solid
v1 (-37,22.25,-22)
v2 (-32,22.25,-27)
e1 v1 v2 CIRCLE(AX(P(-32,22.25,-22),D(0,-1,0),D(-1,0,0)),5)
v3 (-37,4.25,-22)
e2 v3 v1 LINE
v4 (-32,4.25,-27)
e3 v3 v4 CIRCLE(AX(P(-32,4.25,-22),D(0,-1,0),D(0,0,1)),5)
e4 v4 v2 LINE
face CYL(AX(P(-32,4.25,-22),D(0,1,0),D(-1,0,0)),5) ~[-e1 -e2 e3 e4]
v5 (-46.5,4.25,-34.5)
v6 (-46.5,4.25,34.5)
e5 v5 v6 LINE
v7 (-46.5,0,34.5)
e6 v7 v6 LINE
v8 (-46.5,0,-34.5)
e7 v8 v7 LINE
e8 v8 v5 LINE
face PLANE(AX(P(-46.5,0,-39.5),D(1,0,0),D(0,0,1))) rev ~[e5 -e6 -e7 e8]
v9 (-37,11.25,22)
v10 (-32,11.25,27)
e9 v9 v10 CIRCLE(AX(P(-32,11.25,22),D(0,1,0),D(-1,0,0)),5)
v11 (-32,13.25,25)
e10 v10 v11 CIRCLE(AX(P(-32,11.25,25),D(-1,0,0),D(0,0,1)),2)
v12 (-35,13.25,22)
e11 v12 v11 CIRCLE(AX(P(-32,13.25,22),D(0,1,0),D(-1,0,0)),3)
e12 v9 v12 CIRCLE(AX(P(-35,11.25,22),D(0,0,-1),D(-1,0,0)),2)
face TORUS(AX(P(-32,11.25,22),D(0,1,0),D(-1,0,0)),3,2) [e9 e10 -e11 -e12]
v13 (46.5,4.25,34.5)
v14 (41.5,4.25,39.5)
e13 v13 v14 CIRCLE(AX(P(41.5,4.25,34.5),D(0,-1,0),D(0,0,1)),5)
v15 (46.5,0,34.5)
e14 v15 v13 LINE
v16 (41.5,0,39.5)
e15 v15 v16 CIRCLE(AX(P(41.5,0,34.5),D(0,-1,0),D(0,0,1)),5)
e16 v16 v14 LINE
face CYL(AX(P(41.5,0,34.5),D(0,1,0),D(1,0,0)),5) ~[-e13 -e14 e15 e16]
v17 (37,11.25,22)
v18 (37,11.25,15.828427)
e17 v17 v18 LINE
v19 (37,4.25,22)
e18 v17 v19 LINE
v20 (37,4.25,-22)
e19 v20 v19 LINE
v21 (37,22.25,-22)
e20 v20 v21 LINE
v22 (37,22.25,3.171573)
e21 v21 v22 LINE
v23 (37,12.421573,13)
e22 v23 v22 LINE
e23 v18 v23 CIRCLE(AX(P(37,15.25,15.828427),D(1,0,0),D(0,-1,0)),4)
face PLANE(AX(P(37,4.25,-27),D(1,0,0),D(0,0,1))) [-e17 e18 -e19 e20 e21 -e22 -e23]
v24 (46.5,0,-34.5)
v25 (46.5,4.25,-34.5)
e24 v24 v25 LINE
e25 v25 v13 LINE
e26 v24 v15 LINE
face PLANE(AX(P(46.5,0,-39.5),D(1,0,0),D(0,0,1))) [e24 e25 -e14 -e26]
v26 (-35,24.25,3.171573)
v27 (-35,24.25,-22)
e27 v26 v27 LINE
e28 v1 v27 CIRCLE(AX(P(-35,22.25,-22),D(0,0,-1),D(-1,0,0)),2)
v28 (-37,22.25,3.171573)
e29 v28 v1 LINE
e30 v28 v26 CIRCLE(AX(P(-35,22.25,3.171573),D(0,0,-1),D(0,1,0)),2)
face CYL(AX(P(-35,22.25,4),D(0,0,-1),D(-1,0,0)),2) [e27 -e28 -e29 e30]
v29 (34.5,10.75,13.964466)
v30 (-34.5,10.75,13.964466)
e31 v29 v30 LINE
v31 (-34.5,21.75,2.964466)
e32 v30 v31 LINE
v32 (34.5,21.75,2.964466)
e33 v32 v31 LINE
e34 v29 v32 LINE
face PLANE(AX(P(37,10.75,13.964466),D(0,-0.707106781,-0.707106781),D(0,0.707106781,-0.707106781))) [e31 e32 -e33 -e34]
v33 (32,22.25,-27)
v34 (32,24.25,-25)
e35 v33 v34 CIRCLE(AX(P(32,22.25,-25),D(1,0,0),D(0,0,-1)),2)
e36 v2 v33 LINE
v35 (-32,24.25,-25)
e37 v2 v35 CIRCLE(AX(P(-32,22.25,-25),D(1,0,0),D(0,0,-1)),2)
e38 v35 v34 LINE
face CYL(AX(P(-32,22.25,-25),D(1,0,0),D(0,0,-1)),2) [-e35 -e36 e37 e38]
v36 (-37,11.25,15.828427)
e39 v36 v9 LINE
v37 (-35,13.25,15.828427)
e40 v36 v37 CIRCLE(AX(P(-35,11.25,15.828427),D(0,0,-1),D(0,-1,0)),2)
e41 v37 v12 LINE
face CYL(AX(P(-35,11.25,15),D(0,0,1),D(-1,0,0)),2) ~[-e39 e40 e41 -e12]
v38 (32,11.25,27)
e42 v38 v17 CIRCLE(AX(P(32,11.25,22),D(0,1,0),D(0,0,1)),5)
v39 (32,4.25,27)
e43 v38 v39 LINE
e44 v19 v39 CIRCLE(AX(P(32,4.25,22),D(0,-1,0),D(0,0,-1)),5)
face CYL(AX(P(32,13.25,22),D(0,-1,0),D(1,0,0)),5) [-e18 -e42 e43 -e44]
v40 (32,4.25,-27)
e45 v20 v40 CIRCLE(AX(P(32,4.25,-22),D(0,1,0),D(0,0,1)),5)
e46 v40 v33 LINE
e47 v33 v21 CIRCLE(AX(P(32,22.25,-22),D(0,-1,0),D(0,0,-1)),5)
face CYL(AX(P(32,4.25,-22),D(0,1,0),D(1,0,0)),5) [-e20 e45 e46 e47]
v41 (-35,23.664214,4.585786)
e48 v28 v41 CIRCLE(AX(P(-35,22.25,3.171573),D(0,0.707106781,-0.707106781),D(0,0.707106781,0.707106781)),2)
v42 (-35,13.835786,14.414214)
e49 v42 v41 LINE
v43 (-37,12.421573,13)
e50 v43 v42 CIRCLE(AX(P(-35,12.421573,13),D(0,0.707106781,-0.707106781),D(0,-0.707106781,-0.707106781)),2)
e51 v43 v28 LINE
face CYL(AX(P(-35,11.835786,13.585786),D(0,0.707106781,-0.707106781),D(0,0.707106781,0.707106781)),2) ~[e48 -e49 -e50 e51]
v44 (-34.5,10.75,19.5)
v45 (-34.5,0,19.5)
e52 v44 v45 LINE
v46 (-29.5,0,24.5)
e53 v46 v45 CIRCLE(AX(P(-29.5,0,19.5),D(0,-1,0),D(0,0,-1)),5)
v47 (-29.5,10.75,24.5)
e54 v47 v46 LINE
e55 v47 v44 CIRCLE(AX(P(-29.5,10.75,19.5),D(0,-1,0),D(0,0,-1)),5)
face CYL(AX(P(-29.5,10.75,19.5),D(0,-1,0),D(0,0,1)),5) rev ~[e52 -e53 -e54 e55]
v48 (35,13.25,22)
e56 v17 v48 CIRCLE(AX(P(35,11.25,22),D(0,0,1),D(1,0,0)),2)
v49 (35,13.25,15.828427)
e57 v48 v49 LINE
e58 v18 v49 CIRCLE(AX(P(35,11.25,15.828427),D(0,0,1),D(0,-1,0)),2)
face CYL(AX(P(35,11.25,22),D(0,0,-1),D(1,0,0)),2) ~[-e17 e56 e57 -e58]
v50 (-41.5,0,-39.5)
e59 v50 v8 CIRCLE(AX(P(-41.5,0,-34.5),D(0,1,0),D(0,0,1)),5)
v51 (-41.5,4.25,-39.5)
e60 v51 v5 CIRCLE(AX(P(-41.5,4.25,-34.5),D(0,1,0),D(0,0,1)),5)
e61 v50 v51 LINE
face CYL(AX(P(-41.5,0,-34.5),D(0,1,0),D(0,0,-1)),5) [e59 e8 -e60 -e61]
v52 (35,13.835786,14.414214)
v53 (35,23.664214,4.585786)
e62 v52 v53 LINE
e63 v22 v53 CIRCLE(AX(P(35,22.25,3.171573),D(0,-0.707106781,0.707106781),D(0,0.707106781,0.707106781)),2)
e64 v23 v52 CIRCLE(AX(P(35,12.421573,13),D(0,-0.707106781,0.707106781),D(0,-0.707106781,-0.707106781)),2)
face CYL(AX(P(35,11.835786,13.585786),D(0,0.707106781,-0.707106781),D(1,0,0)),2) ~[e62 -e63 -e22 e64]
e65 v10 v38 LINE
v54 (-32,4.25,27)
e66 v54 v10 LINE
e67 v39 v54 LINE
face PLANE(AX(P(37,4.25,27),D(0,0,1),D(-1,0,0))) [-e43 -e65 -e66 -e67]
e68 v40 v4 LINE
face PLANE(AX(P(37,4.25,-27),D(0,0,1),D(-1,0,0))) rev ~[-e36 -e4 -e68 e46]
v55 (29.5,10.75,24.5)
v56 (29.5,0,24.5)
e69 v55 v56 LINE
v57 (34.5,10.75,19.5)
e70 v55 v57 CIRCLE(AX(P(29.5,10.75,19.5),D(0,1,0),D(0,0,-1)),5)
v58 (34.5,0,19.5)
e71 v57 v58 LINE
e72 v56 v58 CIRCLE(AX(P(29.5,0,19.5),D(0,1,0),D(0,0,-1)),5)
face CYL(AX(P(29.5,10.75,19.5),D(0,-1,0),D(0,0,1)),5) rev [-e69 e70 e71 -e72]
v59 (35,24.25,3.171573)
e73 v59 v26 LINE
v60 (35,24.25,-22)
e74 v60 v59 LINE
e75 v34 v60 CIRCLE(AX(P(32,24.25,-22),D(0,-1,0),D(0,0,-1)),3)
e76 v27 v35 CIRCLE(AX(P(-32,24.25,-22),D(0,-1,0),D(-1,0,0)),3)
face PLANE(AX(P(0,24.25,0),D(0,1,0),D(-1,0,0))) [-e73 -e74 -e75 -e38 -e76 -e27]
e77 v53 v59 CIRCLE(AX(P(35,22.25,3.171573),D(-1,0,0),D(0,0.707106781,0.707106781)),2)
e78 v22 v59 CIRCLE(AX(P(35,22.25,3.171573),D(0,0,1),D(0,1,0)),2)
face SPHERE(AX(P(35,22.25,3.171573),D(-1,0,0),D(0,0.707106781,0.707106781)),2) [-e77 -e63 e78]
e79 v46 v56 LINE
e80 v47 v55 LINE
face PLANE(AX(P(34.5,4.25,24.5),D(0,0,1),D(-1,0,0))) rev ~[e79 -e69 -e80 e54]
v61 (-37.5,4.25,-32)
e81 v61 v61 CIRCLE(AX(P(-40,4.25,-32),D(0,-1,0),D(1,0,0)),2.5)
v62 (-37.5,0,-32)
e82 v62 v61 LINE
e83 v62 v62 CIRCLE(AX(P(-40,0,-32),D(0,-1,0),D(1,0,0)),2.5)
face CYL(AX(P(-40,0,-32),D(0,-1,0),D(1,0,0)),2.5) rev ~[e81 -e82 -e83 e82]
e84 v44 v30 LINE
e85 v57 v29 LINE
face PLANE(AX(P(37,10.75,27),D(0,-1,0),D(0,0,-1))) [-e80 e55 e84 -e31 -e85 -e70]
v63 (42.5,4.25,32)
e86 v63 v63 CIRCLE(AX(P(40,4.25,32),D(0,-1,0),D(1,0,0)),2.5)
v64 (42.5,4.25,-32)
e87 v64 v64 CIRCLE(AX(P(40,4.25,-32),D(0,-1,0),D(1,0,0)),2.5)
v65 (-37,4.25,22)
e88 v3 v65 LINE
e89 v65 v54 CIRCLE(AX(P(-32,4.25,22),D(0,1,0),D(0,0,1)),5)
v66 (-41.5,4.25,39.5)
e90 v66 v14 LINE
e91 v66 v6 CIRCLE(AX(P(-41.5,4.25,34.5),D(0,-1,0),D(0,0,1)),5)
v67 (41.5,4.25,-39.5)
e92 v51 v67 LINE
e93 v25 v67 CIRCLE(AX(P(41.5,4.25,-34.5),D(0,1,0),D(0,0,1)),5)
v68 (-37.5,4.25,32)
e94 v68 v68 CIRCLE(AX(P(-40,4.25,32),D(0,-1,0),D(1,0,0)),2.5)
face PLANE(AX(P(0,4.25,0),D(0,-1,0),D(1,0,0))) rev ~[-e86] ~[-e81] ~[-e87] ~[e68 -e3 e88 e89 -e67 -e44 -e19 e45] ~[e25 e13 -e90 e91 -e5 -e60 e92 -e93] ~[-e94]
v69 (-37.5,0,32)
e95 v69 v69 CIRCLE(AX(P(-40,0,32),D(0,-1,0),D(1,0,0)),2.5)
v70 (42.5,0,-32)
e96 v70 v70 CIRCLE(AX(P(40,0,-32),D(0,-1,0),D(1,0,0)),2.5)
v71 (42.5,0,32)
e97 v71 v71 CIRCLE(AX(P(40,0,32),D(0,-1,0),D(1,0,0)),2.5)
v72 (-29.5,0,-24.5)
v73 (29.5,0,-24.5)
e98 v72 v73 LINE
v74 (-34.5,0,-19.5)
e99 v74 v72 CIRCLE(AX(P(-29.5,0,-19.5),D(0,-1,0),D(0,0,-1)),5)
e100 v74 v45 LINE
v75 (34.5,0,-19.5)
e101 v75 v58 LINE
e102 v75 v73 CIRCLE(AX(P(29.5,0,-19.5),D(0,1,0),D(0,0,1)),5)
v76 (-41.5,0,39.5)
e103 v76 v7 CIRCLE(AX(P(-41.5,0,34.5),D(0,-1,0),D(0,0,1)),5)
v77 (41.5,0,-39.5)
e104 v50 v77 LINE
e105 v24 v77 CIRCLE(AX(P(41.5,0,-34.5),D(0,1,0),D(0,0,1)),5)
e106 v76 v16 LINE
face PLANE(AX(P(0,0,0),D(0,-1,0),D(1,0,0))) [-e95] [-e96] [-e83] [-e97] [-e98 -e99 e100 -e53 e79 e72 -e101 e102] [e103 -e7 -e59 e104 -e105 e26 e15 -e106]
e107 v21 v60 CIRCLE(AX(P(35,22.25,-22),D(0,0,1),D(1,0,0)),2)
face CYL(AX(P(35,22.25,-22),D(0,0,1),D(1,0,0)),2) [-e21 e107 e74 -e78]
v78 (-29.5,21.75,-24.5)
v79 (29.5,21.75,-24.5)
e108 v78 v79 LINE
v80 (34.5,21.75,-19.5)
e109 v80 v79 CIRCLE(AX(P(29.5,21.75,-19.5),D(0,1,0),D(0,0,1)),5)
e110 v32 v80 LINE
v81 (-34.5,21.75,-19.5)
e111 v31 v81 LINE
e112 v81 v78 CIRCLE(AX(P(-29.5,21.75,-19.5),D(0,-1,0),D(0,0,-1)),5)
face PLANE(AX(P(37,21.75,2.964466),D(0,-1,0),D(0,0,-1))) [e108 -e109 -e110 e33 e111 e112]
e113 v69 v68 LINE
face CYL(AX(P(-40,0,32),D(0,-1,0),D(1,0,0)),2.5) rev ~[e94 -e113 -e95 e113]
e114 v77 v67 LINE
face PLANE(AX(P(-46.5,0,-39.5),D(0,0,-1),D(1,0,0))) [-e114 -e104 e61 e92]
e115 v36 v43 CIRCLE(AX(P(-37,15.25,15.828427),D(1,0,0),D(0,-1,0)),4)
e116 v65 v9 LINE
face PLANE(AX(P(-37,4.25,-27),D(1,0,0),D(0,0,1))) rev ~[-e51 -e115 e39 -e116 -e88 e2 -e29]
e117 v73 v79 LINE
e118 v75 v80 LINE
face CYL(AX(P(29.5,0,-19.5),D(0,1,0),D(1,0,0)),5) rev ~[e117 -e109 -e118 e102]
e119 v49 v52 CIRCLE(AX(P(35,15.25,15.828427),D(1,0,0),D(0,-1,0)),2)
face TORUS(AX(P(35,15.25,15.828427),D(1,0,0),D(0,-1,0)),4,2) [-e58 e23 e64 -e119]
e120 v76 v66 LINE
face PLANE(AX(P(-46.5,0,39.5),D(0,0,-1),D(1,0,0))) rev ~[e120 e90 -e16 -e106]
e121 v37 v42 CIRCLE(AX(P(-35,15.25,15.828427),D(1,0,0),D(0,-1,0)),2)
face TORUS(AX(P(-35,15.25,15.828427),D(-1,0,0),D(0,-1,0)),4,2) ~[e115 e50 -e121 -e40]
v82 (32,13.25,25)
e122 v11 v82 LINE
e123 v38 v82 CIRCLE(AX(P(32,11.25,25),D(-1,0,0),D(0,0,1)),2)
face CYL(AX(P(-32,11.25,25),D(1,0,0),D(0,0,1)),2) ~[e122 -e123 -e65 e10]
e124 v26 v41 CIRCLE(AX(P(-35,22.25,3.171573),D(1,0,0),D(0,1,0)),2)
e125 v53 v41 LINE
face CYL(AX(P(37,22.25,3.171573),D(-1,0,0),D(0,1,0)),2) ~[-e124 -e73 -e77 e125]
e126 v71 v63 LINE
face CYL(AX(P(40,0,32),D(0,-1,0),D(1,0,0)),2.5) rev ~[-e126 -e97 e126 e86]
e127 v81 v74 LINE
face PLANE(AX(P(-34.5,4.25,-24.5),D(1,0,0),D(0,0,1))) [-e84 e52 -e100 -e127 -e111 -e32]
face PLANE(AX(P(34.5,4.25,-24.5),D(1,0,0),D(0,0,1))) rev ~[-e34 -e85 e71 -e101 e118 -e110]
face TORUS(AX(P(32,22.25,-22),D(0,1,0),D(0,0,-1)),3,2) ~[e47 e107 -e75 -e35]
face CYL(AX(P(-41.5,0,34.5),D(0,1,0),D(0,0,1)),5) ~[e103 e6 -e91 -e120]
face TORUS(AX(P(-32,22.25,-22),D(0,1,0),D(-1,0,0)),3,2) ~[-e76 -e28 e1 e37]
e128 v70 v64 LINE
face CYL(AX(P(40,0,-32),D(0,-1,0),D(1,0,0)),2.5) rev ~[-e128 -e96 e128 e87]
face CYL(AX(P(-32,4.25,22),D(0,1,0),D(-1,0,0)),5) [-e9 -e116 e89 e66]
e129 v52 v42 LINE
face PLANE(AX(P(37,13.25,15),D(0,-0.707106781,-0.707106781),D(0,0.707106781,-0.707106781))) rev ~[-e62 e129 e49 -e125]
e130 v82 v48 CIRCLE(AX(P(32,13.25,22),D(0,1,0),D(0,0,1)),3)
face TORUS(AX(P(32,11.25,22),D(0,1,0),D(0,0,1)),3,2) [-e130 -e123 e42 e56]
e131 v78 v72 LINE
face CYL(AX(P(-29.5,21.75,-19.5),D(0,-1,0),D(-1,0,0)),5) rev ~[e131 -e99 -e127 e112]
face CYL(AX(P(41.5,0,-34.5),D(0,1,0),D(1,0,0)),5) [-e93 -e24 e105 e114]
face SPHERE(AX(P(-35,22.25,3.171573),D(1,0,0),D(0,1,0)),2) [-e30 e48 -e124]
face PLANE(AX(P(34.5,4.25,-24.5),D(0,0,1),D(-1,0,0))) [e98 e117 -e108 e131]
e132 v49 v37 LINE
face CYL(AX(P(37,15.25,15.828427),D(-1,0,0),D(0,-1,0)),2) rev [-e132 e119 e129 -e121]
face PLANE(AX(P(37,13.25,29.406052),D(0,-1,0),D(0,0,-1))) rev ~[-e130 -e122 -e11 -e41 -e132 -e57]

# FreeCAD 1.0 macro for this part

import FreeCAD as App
import Part
import Sketcher

V = App.Vector
Q = App.Units.Quantity


def edges_at(feature, points):
    """Names of the edges that pass closest to the given points."""
    edges = feature.Shape.Edges
    near = lambda p: min(range(len(edges)), key=lambda i: edges[i].distToShape(Part.Vertex(*p))[0])
    return sorted({f"Edge{near(p) + 1}" for p in points})


def add_polygon(sketch, points):
    """Adds a closed chain of lines whose ends are joined by coincident constraints."""
    first, n = sketch.GeometryCount, len(points)
    for a, b in zip(points, points[1:] + points[:1]):
        sketch.addGeometry(Part.LineSegment(App.Vector(*a, 0), App.Vector(*b, 0)), False)
    for i in range(n):
        sketch.addConstraint(Sketcher.Constraint("Coincident", first + i, 2, first + (i + 1) % n, 1))

doc = App.newDocument("Part")
body = doc.addObject("PartDesign::Body", "Body")

# Sketch on XZ plane
sketch1 = doc.addObject("Sketcher::SketchObject", "Sketch")
body.addObject(sketch1)
sketch1.AttachmentSupport = (doc.XZ_Plane, [""])
sketch1.MapMode = "FlatFace"
add_polygon(sketch1, [(-46.5, 39.5), (-46.5, -39.5), (46.5, -39.5), (46.5, 39.5)])  # lines 0-3
sketch1.addGeometry(Part.Circle(V(-40, -32, 0), V(0, 0, 1), 2.5), False)  # 4
sketch1.addGeometry(Part.Circle(V(40, -32, 0), V(0, 0, 1), 2.5), False)  # 5
sketch1.addGeometry(Part.Circle(V(-40, 32, 0), V(0, 0, 1), 2.5), False)  # 6
add_polygon(sketch1, [(34.5, -24.5), (-34.5, -24.5), (-34.5, 24.5), (34.5, 24.5)])  # lines 7-10
sketch1.addGeometry(Part.Circle(V(40, 32, 0), V(0, 0, 1), 2.5), False)  # 11
sketch1.addConstraint(Sketcher.Constraint("Vertical", 0))
sketch1.addConstraint(Sketcher.Constraint("Horizontal", 1))
sketch1.addConstraint(Sketcher.Constraint("Vertical", 2))
sketch1.addConstraint(Sketcher.Constraint("Horizontal", 3))
sketch1.addConstraint(Sketcher.Constraint("Horizontal", 7))
sketch1.addConstraint(Sketcher.Constraint("Vertical", 8))
sketch1.addConstraint(Sketcher.Constraint("Horizontal", 9))
sketch1.addConstraint(Sketcher.Constraint("Vertical", 10))
sketch1.addConstraint(Sketcher.Constraint("Equal", 4, 5))
sketch1.addConstraint(Sketcher.Constraint("Equal", 5, 6))
sketch1.addConstraint(Sketcher.Constraint("Equal", 6, 11))
sketch1.addConstraint(Sketcher.Constraint("Symmetric", 5, 3, 6, 3, -1, 1))
sketch1.addConstraint(Sketcher.Constraint("Symmetric", 4, 3, 11, 3, -1, 1))
sketch1.addConstraint(Sketcher.Constraint("Symmetric", 0, 2, 2, 2, -1, 1))
sketch1.addConstraint(Sketcher.Constraint("Symmetric", 7, 2, 9, 2, -1, 1))
sketch1.addConstraint(Sketcher.Constraint("Symmetric", 4, 3, 5, 3, -2))
sketch1.addConstraint(Sketcher.Constraint("Diameter", 4, 5.0))
sketch1.addConstraint(Sketcher.Constraint("DistanceX", 1, 1, 1, 2, 93.0))
sketch1.addConstraint(Sketcher.Constraint("DistanceX", 7, 2, 7, 1, 69.0))
sketch1.addConstraint(Sketcher.Constraint("DistanceY", 0, 2, 0, 1, 79.0))
sketch1.addConstraint(Sketcher.Constraint("DistanceY", 8, 1, 8, 2, 49.0))
sketch1.addConstraint(Sketcher.Constraint("DistanceX", 4, 3, -1, 1, 40.0))
sketch1.addConstraint(Sketcher.Constraint("DistanceY", 4, 3, -1, 1, 32.0))
pad1 = doc.addObject("PartDesign::Pad", "Pad")
body.addObject(pad1)
pad1.Profile = sketch1
pad1.Length = 4.25
pad1.Reversed = True

# Sketch on XZ plane
sketch2 = doc.addObject("Sketcher::SketchObject", "Sketch001")
body.addObject(sketch2)
sketch2.AttachmentSupport = (doc.XZ_Plane, [""])
sketch2.MapMode = "FlatFace"
sketch2.AttachmentOffset = App.Placement(V(0, 0, -4.25), App.Rotation())
add_polygon(sketch2, [(37, 27), (37, -27), (-37, -27), (-37, 27)])  # lines 0-3
add_polygon(sketch2, [(-34.5, -24.5), (34.5, -24.5), (34.5, 24.5), (-34.5, 24.5)])  # lines 4-7
sketch2.addConstraint(Sketcher.Constraint("Vertical", 0))
sketch2.addConstraint(Sketcher.Constraint("Horizontal", 1))
sketch2.addConstraint(Sketcher.Constraint("Vertical", 2))
sketch2.addConstraint(Sketcher.Constraint("Horizontal", 3))
sketch2.addConstraint(Sketcher.Constraint("Horizontal", 4))
sketch2.addConstraint(Sketcher.Constraint("Vertical", 5))
sketch2.addConstraint(Sketcher.Constraint("Horizontal", 6))
sketch2.addConstraint(Sketcher.Constraint("Vertical", 7))
sketch2.addConstraint(Sketcher.Constraint("Symmetric", 0, 2, 2, 2, -1, 1))
sketch2.addConstraint(Sketcher.Constraint("Symmetric", 4, 2, 6, 2, -1, 1))
sketch2.addConstraint(Sketcher.Constraint("DistanceX", 1, 2, 1, 1, 74.0))
sketch2.addConstraint(Sketcher.Constraint("DistanceX", 4, 1, 4, 2, 69.0))
sketch2.addConstraint(Sketcher.Constraint("DistanceY", 0, 2, 0, 1, 54.0))
sketch2.addConstraint(Sketcher.Constraint("DistanceY", 5, 1, 5, 2, 49.0))
pad2 = doc.addObject("PartDesign::Pad", "Pad001")
body.addObject(pad2)
pad2.Profile = sketch2
pad2.Length = 20
pad2.Reversed = True

# Sketch on YZ plane
sketch3 = doc.addObject("Sketcher::SketchObject", "Sketch002")
body.addObject(sketch3)
sketch3.AttachmentSupport = (doc.YZ_Plane, [""])
sketch3.MapMode = "FlatFace"
sketch3.AttachmentOffset = App.Placement(V(0, 0, 37), App.Rotation())
add_polygon(sketch3, [(24.25, 29.406052), (13.25, 29.406052), (13.25, 15), (24.25, 4)])  # lines 0-3
sketch3.addConstraint(Sketcher.Constraint("Horizontal", 0))
sketch3.addConstraint(Sketcher.Constraint("Vertical", 1))
sketch3.addConstraint(Sketcher.Constraint("Vertical", 3))
sketch3.addConstraint(Sketcher.Constraint("DistanceX", 0, 2, 0, 1, 11.0))
sketch3.addConstraint(Sketcher.Constraint("Angle", 2, Q("-45 deg")))
sketch3.addConstraint(Sketcher.Constraint("DistanceY", -1, 1, 1, 2, 15.0))
sketch3.addConstraint(Sketcher.Constraint("DistanceX", -1, 1, 0, 2, 13.25))
sketch3.addConstraint(Sketcher.Constraint("DistanceY", 1, 2, 1, 1, 14.406052))
pocket1 = doc.addObject("PartDesign::Pocket", "Pocket")
body.addObject(pocket1)
pocket1.Profile = sketch3
pocket1.Type = "ThroughAll"

# Sketch on YZ plane
sketch4 = doc.addObject("Sketcher::SketchObject", "Sketch003")
body.addObject(sketch4)
sketch4.AttachmentSupport = (doc.YZ_Plane, [""])
sketch4.MapMode = "FlatFace"
sketch4.AttachmentOffset = App.Placement(V(0, 0, 37), App.Rotation())
add_polygon(sketch4, [(13.25, 27), (10.75, 27), (10.75, 13.964466), (21.75, 2.964466), (21.75, -27), (24.25, -27), (24.25, 4), (13.25, 15)])  # lines 0-7
sketch4.addConstraint(Sketcher.Constraint("Horizontal", 0))
sketch4.addConstraint(Sketcher.Constraint("Vertical", 1))
sketch4.addConstraint(Sketcher.Constraint("Vertical", 3))
sketch4.addConstraint(Sketcher.Constraint("Horizontal", 4))
sketch4.addConstraint(Sketcher.Constraint("Vertical", 5))
sketch4.addConstraint(Sketcher.Constraint("Vertical", 7))
sketch4.addConstraint(Sketcher.Constraint("Parallel", 2, 6))
sketch4.addConstraint(Sketcher.Constraint("Equal", 0, 4))
sketch4.addConstraint(Sketcher.Constraint("DistanceY", 5, 1, 5, 2, 31.0))
sketch4.addConstraint(Sketcher.Constraint("DistanceY", 7, 1, 7, 2, 12.0))
sketch4.addConstraint(Sketcher.Constraint("Angle", 2, Q("-45 deg")))
sketch4.addConstraint(Sketcher.Constraint("DistanceX", 0, 2, 0, 1, 2.5))
sketch4.addConstraint(Sketcher.Constraint("DistanceY", -1, 1, 0, 2, 27.0))
sketch4.addConstraint(Sketcher.Constraint("DistanceY", 3, 2, -1, 1, 27.0))
sketch4.addConstraint(Sketcher.Constraint("DistanceX", -1, 1, 0, 2, 10.75))
sketch4.addConstraint(Sketcher.Constraint("DistanceY", 1, 2, 1, 1, 13.035534))
pad3 = doc.addObject("PartDesign::Pad", "Pad002")
body.addObject(pad3)
pad3.Profile = sketch4
pad3.Type = "UpToLast"
pad3.Reversed = True
doc.recompute()

fillet = doc.addObject("PartDesign::Fillet", "Fillet")
body.addObject(fillet)
fillet.Base = (pad3, edges_at(pad3, [
    (37, 14.25, -27),
    (37, 8.75, 27),
    (-37, 8.75, 27),
    (-37, 14.25, -27),
    (-46.5, 2.125, 39.5),
    (-46.5, 2.125, -39.5),
    (46.5, 2.125, 39.5),
    (46.5, 2.125, -39.5),
    (-34.5, 5.375, 24.5),
    (34.5, 5.375, 24.5),
    (34.5, 10.875, -24.5),
    (-34.5, 10.875, -24.5),
]))
fillet.Radius = 5
doc.recompute()

fillet2 = doc.addObject("PartDesign::Fillet", "Fillet001")
body.addObject(fillet2)
fillet2.Base = (fillet, edges_at(fillet, [
    (37, 13.25, 18.5),
    (37, 18.75, 9.5),
    (37, 24.25, -9),
    (-37, 18.75, 9.5),
    (0, 13.25, 27),
    (0, 24.25, -27),
    (-37, 24.25, -9),
    (-37, 13.25, 18.5),
    (0, 24.25, 4),
    (0, 13.25, 15),
]))
fillet2.Radius = 2

doc.recompute()
